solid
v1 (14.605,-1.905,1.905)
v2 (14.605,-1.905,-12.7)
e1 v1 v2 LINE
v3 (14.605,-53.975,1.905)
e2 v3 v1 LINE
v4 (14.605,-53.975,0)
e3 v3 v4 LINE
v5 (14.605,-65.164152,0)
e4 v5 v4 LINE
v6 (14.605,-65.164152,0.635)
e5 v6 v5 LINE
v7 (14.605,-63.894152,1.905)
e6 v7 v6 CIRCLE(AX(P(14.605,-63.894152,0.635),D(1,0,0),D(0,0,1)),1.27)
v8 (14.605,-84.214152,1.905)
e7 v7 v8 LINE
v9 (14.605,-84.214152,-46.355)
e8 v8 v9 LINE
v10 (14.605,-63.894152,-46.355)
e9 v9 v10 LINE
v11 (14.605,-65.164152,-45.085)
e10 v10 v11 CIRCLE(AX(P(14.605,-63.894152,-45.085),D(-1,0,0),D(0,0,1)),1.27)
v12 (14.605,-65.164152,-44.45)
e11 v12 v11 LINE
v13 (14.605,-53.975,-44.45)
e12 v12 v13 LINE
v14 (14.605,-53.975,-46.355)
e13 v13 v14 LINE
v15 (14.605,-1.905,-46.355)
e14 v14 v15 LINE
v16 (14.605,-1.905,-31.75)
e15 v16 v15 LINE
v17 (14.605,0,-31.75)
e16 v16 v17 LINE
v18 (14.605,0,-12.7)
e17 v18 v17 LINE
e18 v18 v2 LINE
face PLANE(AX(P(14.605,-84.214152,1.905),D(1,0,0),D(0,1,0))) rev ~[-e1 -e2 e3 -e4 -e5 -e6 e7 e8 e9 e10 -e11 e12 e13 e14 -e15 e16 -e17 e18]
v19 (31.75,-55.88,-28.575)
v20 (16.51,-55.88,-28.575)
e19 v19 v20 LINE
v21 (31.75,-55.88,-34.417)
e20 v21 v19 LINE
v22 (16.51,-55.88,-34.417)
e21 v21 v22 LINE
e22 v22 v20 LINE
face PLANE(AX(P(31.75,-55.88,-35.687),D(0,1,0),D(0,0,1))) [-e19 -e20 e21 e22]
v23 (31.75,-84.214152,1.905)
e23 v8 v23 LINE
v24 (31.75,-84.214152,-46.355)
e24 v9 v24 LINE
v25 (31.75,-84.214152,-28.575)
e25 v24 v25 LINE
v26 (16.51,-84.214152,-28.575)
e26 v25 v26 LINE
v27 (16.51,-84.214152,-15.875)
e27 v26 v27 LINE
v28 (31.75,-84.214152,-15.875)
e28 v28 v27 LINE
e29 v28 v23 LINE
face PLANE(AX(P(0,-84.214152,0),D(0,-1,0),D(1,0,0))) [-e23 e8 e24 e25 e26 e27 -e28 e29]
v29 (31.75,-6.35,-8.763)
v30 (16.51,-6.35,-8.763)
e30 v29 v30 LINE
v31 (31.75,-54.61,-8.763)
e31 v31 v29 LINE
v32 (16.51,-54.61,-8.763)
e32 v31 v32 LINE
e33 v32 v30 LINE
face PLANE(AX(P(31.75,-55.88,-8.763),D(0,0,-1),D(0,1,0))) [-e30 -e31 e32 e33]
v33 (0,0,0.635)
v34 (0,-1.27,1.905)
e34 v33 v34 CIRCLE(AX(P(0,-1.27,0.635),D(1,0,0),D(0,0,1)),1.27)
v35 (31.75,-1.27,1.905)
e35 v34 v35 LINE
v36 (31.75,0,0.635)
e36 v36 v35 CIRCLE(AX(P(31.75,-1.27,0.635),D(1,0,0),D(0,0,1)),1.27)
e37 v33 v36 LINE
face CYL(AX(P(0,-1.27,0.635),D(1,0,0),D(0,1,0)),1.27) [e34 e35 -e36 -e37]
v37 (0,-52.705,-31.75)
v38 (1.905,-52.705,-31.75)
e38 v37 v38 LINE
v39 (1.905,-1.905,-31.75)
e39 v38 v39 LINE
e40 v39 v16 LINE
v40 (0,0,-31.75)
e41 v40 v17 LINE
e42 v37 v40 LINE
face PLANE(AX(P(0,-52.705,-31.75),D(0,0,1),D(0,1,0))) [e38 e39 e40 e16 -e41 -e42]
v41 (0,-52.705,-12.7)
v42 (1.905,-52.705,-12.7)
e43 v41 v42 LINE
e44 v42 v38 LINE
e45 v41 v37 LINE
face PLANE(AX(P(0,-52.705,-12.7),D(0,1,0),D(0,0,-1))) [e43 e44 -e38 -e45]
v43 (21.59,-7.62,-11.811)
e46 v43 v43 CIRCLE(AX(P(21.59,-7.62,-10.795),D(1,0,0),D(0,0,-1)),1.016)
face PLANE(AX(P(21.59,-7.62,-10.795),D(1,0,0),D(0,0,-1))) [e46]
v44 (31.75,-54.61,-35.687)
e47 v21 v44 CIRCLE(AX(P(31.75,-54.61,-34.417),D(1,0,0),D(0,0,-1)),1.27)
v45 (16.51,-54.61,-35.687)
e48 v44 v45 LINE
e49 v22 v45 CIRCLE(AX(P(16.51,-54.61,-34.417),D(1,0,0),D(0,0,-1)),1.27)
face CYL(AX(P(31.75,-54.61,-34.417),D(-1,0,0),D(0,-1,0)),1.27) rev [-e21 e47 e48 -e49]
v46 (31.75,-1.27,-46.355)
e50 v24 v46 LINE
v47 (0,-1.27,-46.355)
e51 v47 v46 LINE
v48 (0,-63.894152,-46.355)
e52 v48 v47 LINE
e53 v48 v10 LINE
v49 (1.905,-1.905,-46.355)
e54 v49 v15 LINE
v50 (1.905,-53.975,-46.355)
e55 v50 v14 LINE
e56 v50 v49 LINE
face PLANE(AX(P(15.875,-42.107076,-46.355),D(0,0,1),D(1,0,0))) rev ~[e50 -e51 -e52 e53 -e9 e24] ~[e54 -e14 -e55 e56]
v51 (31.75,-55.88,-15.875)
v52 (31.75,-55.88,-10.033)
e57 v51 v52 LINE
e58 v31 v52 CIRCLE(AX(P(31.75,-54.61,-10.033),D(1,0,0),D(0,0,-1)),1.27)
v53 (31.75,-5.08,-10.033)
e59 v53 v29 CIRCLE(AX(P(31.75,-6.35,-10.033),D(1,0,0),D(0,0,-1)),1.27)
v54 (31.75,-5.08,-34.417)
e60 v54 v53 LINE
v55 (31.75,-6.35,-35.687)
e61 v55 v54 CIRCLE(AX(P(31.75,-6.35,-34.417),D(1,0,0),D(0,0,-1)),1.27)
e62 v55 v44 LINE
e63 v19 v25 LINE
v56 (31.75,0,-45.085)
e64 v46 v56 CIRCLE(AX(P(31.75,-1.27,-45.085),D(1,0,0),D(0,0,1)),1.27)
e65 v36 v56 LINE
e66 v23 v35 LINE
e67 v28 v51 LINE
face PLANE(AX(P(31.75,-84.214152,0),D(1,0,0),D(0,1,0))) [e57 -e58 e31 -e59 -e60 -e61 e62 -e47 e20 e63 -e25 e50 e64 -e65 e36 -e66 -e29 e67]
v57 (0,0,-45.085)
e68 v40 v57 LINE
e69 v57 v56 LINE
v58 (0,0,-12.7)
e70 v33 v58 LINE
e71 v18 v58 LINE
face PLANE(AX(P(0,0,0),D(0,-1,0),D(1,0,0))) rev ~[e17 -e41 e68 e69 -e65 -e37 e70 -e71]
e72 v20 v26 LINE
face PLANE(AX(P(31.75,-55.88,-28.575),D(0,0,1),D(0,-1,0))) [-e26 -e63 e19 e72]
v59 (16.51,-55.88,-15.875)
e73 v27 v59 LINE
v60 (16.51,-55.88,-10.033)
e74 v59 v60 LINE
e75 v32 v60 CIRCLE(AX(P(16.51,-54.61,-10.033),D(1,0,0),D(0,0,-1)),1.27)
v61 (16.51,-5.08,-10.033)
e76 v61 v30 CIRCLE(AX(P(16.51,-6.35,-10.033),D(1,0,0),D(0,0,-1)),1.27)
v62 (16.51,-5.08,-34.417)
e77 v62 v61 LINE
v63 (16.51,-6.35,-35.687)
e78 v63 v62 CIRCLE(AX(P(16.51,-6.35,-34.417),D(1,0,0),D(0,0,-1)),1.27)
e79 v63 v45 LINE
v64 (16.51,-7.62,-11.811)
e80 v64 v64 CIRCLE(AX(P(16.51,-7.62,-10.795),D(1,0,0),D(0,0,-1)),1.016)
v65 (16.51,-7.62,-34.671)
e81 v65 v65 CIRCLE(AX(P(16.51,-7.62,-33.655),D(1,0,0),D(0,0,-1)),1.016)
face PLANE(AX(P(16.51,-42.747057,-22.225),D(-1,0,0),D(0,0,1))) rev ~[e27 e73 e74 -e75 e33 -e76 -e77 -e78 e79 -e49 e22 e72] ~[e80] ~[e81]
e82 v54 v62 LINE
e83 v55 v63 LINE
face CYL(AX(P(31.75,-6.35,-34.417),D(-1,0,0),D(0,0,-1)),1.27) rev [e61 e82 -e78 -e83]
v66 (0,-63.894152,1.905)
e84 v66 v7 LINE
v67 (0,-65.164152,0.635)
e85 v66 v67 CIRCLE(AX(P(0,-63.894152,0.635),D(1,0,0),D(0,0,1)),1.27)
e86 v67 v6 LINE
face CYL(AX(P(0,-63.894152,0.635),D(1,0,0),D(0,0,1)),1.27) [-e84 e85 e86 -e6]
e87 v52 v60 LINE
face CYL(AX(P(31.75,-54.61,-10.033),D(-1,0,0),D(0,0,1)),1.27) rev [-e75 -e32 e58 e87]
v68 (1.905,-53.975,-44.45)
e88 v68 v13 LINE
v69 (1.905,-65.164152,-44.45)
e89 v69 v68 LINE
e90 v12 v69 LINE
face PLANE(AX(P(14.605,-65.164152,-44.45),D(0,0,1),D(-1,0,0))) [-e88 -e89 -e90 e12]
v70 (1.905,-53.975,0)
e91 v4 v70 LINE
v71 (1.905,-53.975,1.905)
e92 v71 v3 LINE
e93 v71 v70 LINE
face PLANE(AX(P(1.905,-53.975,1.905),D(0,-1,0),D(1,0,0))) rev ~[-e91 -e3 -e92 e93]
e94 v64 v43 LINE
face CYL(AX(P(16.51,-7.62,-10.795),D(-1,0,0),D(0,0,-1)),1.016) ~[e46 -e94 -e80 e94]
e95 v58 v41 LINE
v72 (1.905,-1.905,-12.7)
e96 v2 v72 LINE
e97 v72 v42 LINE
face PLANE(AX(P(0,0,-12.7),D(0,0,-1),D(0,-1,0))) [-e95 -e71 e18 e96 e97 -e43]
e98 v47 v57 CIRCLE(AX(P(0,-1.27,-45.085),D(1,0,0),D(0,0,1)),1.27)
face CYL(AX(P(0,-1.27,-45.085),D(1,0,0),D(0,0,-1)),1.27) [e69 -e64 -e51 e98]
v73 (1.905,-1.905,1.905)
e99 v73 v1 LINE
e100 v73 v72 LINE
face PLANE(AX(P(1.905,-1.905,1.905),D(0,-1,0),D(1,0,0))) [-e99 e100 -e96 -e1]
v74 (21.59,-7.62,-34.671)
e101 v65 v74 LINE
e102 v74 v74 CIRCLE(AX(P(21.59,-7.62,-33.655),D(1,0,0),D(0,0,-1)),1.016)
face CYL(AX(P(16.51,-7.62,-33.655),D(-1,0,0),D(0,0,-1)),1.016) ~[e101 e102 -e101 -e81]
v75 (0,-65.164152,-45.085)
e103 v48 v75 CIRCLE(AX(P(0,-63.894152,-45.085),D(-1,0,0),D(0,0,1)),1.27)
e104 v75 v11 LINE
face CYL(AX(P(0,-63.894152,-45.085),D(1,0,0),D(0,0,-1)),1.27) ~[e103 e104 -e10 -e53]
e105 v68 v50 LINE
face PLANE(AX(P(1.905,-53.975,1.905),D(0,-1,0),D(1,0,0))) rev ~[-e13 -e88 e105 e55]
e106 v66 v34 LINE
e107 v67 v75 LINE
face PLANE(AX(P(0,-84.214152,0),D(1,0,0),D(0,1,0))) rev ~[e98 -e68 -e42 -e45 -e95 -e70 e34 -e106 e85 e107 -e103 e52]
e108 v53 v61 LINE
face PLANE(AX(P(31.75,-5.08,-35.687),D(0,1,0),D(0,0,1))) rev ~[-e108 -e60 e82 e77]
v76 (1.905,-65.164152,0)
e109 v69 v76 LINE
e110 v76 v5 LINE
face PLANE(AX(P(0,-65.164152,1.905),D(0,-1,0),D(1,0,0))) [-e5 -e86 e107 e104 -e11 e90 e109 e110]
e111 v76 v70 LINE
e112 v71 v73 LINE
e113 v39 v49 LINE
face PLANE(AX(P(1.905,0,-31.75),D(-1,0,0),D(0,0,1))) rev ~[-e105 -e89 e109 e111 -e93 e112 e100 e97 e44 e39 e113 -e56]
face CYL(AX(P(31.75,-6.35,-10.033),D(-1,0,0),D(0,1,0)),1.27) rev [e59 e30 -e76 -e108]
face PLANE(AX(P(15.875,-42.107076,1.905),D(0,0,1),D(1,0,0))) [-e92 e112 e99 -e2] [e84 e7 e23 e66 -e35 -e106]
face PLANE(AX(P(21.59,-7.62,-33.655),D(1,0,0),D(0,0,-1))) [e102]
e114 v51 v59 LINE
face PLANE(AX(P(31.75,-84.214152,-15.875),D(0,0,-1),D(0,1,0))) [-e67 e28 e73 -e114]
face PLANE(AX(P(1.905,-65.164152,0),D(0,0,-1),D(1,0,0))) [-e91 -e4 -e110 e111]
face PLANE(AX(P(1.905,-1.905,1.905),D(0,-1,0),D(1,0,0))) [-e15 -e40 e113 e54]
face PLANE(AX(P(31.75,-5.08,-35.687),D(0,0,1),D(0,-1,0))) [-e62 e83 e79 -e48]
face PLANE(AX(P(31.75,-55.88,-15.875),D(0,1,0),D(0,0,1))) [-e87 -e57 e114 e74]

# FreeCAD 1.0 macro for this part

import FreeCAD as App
import Part
import Sketcher
Q = App.Units.Quantity


def edges_at(feature, points):
    """Names of the edges that pass closest to the given points."""
    edges = feature.Shape.Edges
    near = lambda p: min(range(len(edges)), key=lambda i: edges[i].distToShape(Part.Vertex(*p))[0])
    return sorted({f"Edge{near(p) + 1}" for p in points})


def add_polygon(sketch, points):
    """Adds a closed chain of lines whose ends are joined by coincident constraints."""
    first, n = sketch.GeometryCount, len(points)
    for a, b in zip(points, points[1:] + points[:1]):
        sketch.addGeometry(Part.LineSegment(App.Vector(*a, 0), App.Vector(*b, 0)), False)
    for i in range(n):
        sketch.addConstraint(Sketcher.Constraint("Coincident", first + i, 2, first + (i + 1) % n, 1))

doc = App.newDocument("Part")
body = doc.addObject("PartDesign::Body", "Body")

sketch1 = body.newObject("Sketcher::SketchObject", "Sketch")
sketch1.AttachmentSupport = (doc.getObject("XY_Plane"), [""])
sketch1.MapMode = "FlatFace"
add_polygon(sketch1, [(0, 0), (0, -84.214152), (31.75, -84.214152), (31.75, 0)])
sketch1.addConstraint(Sketcher.Constraint("Vertical", 0))
sketch1.addConstraint(Sketcher.Constraint("Horizontal", 1))
sketch1.addConstraint(Sketcher.Constraint("Vertical", 2))
sketch1.addConstraint(Sketcher.Constraint("Horizontal", 3))
sketch1.addConstraint(Sketcher.Constraint("Coincident", 3, 2, -1, 1))
sketch1.addConstraint(Sketcher.Constraint("DistanceX", 1, 1, 1, 2, Q("1.25 in")))
sketch1.addConstraint(Sketcher.Constraint("DistanceY", 0, 2, 0, 1, Q("84.214152 mm")))
pad1 = body.newObject("PartDesign::Pad", "Pad")
pad1.Profile = sketch1
pad1.Type = "TwoLengths"
pad1.Length = Q("0.075 in")
pad1.Length2 = Q("1.825 in")

sketch2 = body.newObject("Sketcher::SketchObject", "Sketch001")
sketch2.AttachmentSupport = (doc.getObject("XY_Plane"), [""])
sketch2.MapMode = "FlatFace"
sketch2.AttachmentOffset = App.Placement(App.Vector(0, 0, 0.075 * 25.4), App.Rotation())
add_polygon(sketch2, [(1.905, -1.905), (1.905, -53.975), (14.605, -53.975), (14.605, -1.905)])
add_polygon(sketch2, [(0, -65.164152), (0, -84.214152), (14.605, -84.214152), (14.605, -65.164152)])
sketch2.addConstraint(Sketcher.Constraint("Vertical", 0))
sketch2.addConstraint(Sketcher.Constraint("Horizontal", 1))
sketch2.addConstraint(Sketcher.Constraint("Vertical", 2))
sketch2.addConstraint(Sketcher.Constraint("Horizontal", 3))
sketch2.addConstraint(Sketcher.Constraint("Vertical", 4))
sketch2.addConstraint(Sketcher.Constraint("Horizontal", 5))
sketch2.addConstraint(Sketcher.Constraint("Vertical", 6))
sketch2.addConstraint(Sketcher.Constraint("Horizontal", 7))
sketch2.addConstraint(Sketcher.Constraint("PointOnObject", 4, 2, -2))
sketch2.addConstraint(Sketcher.Constraint("Vertical", 2, 2, 5, 2))
sketch2.addConstraint(Sketcher.Constraint("DistanceX", 1, 1, 1, 2, Q("0.5 in")))
sketch2.addConstraint(Sketcher.Constraint("DistanceY", 0, 2, 0, 1, Q("2.05 in")))
sketch2.addConstraint(Sketcher.Constraint("DistanceY", 4, 2, 4, 1, Q("0.75 in")))
sketch2.addConstraint(Sketcher.Constraint("DistanceX", 5, 1, 5, 2, Q("0.575 in")))
sketch2.addConstraint(Sketcher.Constraint("DistanceY", 0, 2, -1, 1, Q("2.125 in")))
sketch2.addConstraint(Sketcher.Constraint("DistanceY", 4, 2, -1, 1, Q("84.214152 mm")))
pocket1 = body.newObject("PartDesign::Pocket", "Pocket")
pocket1.Profile = sketch2
pocket1.Type = "ThroughAll"

sketch3 = body.newObject("Sketcher::SketchObject", "Sketch002")
sketch3.AttachmentSupport = (doc.getObject("XZ_Plane"), [""])
sketch3.MapMode = "FlatFace"
add_polygon(sketch3, [(1.905, -31.75), (1.905, -12.7), (14.405235, -12.7), (14.405235, -31.75)])
sketch3.addConstraint(Sketcher.Constraint("Vertical", 0))
sketch3.addConstraint(Sketcher.Constraint("Horizontal", 1))
sketch3.addConstraint(Sketcher.Constraint("Vertical", 2))
sketch3.addConstraint(Sketcher.Constraint("Horizontal", 3))
sketch3.addConstraint(Sketcher.Constraint("DistanceY", 0, 1, 0, 2, Q("0.75 in")))
sketch3.addConstraint(Sketcher.Constraint("DistanceY", 0, 2, -1, 1, Q("0.5 in")))
sketch3.addConstraint(Sketcher.Constraint("DistanceX", -1, 1, 0, 2, Q("0.075 in")))
sketch3.addConstraint(Sketcher.Constraint("DistanceX", 1, 1, 1, 2, Q("12.500235 mm")))
pocket2 = body.newObject("PartDesign::Pocket", "Pocket001")
pocket2.Profile = sketch3
pocket2.Length = Q("2.575 in")
pocket2.Reversed = True

sketch4 = body.newObject("Sketcher::SketchObject", "Sketch003")
sketch4.AttachmentSupport = (doc.getObject("YZ_Plane"), [""])
sketch4.MapMode = "FlatFace"
add_polygon(sketch4, [(0, -12.7), (0, -31.75), (-52.705, -31.75), (-52.705, -12.7)])
sketch4.addConstraint(Sketcher.Constraint("Vertical", 0))
sketch4.addConstraint(Sketcher.Constraint("Horizontal", 1))
sketch4.addConstraint(Sketcher.Constraint("Vertical", 2))
sketch4.addConstraint(Sketcher.Constraint("Horizontal", 3))
sketch4.addConstraint(Sketcher.Constraint("PointOnObject", 0, 2, -2))
sketch4.addConstraint(Sketcher.Constraint("DistanceY", 0, 2, 0, 1, Q("0.75 in")))
sketch4.addConstraint(Sketcher.Constraint("DistanceY", 2, 2, -1, 1, Q("0.5 in")))
sketch4.addConstraint(Sketcher.Constraint("DistanceX", 1, 2, 1, 1, Q("2.075 in")))
pocket3 = body.newObject("PartDesign::Pocket", "Pocket002")
pocket3.Profile = sketch4
pocket3.Length = Q("0.575 in")
pocket3.Reversed = True

sketch5 = body.newObject("Sketcher::SketchObject", "Sketch004")
sketch5.AttachmentSupport = (doc.getObject("XZ_Plane"), [""])
sketch5.MapMode = "FlatFace"
sketch5.AttachmentOffset = App.Placement(App.Vector(0, 0, 65.164152), App.Rotation())
add_polygon(sketch5, [(1.905, 0), (1.905, -44.45), (14.605, -44.45), (14.605, 0)])
sketch5.addConstraint(Sketcher.Constraint("Vertical", 0))
sketch5.addConstraint(Sketcher.Constraint("Horizontal", 1))
sketch5.addConstraint(Sketcher.Constraint("Vertical", 2))
sketch5.addConstraint(Sketcher.Constraint("Horizontal", 3))
sketch5.addConstraint(Sketcher.Constraint("PointOnObject", 2, 2, -1))
sketch5.addConstraint(Sketcher.Constraint("DistanceX", 1, 1, 1, 2, Q("0.5 in")))
sketch5.addConstraint(Sketcher.Constraint("DistanceY", 0, 2, 0, 1, Q("1.75 in")))
sketch5.addConstraint(Sketcher.Constraint("DistanceX", -1, 1, 0, 2, Q("0.075 in")))
pocket4 = body.newObject("PartDesign::Pocket", "Pocket003")
pocket4.Profile = sketch5
pocket4.Length = 11.189152

sketch6 = body.newObject("Sketcher::SketchObject", "Sketch005")
sketch6.AttachmentSupport = (doc.getObject("YZ_Plane"), [""])
sketch6.MapMode = "FlatFace"
sketch6.AttachmentOffset = App.Placement(App.Vector(0, 0, 1.25 * 25.4), App.Rotation())
add_polygon(sketch6, [(-5.08, -35.687), (-5.08, -8.763), (-55.88, -8.763), (-55.88, -15.875), (-84.214152, -15.875), (-84.214152, -28.575), (-55.88, -28.575), (-55.88, -35.687)])
sketch6.addConstraint(Sketcher.Constraint("Vertical", 0))
sketch6.addConstraint(Sketcher.Constraint("Horizontal", 1))
sketch6.addConstraint(Sketcher.Constraint("Vertical", 2))
sketch6.addConstraint(Sketcher.Constraint("Horizontal", 3))
sketch6.addConstraint(Sketcher.Constraint("Vertical", 4))
sketch6.addConstraint(Sketcher.Constraint("Horizontal", 5))
sketch6.addConstraint(Sketcher.Constraint("Vertical", 6))
sketch6.addConstraint(Sketcher.Constraint("Horizontal", 7))
sketch6.addConstraint(Sketcher.Constraint("Vertical", 2, 2, 5, 2))
sketch6.addConstraint(Sketcher.Constraint("Equal", 2, 6))
sketch6.addConstraint(Sketcher.Constraint("DistanceX", 1, 2, 1, 1, Q("2 in")))
sketch6.addConstraint(Sketcher.Constraint("DistanceY", 4, 2, 4, 1, Q("0.5 in")))
sketch6.addConstraint(Sketcher.Constraint("DistanceY", 0, 1, 0, 2, Q("1.06 in")))
sketch6.addConstraint(Sketcher.Constraint("DistanceX", 0, 2, -1, 1, Q("0.2 in")))
sketch6.addConstraint(Sketcher.Constraint("DistanceY", 0, 2, -1, 1, Q("0.345 in")))
sketch6.addConstraint(Sketcher.Constraint("DistanceX", 3, 2, 3, 1, Q("28.334152 mm")))
pocket5 = body.newObject("PartDesign::Pocket", "Pocket004")
pocket5.Profile = sketch6
pocket5.Length = Q("0.6 in")

sketch7 = body.newObject("Sketcher::SketchObject", "Sketch006")
sketch7.AttachmentSupport = (doc.getObject("YZ_Plane"), [""])
sketch7.MapMode = "FlatFace"
sketch7.AttachmentOffset = App.Placement(App.Vector(0, 0, 0.65 * 25.4), App.Rotation())
sketch7.addGeometry(Part.Circle(App.Vector(-7.62, -33.655, 0), App.Vector(0, 0, 1), 1.016), False)
sketch7.addGeometry(Part.Circle(App.Vector(-7.62, -10.795, 0), App.Vector(0, 0, 1), 1.016), False)
sketch7.addConstraint(Sketcher.Constraint("Equal", 0, 1))
sketch7.addConstraint(Sketcher.Constraint("Vertical", 0, 3, 1, 3))
sketch7.addConstraint(Sketcher.Constraint("Diameter", 0, Q("0.08 in")))
sketch7.addConstraint(Sketcher.Constraint("DistanceX", 0, 3, -1, 1, Q("0.3 in")))
sketch7.addConstraint(Sketcher.Constraint("DistanceY", 0, 3, 1, 3, Q("0.9 in")))
sketch7.addConstraint(Sketcher.Constraint("DistanceY", 0, 3, -1, 1, Q("1.325 in")))
pad2 = body.newObject("PartDesign::Pad", "Pad001")
pad2.Profile = sketch7
pad2.Length = Q("0.2 in")
doc.recompute()

fillet = body.newObject("PartDesign::Fillet", "Fillet")
fillet.Base = (pad2, edges_at(pad2, [
    (24.13, -5.08, -8.763),
    (24.13, -5.08, -35.687),
    (24.13, -55.88, -35.687),
    (24.13, -55.88, -8.763),
]))
fillet.Radius = Q("0.05 in")
doc.recompute()

fillet2 = body.newObject("PartDesign::Fillet", "Fillet001")
fillet2.Base = (fillet, edges_at(fillet, [
    (15.875, 0, -46.355),
    (15.875, 0, 1.905),
    (7.303, -65.164, -46.355),
    (7.303, -65.164, 1.905),
]))
fillet2.Radius = Q("0.05 in")

doc.recompute()
